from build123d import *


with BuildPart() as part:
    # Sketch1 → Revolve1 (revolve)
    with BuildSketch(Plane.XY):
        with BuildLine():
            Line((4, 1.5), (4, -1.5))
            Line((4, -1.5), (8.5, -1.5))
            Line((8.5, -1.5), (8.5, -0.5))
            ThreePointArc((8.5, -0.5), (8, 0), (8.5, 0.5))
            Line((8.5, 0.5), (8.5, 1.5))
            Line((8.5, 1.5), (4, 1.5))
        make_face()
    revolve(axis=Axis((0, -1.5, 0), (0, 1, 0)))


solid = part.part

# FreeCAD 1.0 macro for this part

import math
import FreeCAD as App
import Part
import Sketcher

V = App.Vector

doc = App.newDocument("Part")
body = doc.addObject("PartDesign::Body", "Body")

sketch1 = body.newObject("Sketcher::SketchObject", "Sketch")
sketch1.AttachmentSupport = (doc.getObject("XY_Plane"), [""])
sketch1.MapMode = "FlatFace"
sketch1.addGeometry([
    Part.LineSegment(V(4, 1.5, 0), V(4, -1.5, 0)),
    Part.LineSegment(V(4, -1.5, 0), V(8.5, -1.5, 0)),
    Part.LineSegment(V(8.5, -1.5, 0), V(8.5, -0.5, 0)),
    Part.ArcOfCircle(Part.Circle(V(8.5, 0, 0), V(0, 0, 1), 0.5), math.radians(90), math.radians(270)),
    Part.LineSegment(V(8.5, 0.5, 0), V(8.5, 1.5, 0)),
    Part.LineSegment(V(8.5, 1.5, 0), V(4, 1.5, 0)),
], False)
sketch1.addConstraint([
    Sketcher.Constraint("Coincident", 0, 2, 1, 1),
    Sketcher.Constraint("Coincident", 1, 2, 2, 1),
    Sketcher.Constraint("Coincident", 2, 2, 3, 2),
    Sketcher.Constraint("Coincident", 3, 1, 4, 1),
    Sketcher.Constraint("Coincident", 4, 2, 5, 1),
    Sketcher.Constraint("Coincident", 5, 2, 0, 1),
    Sketcher.Constraint("Vertical", 0),
    Sketcher.Constraint("Horizontal", 1),
    Sketcher.Constraint("Vertical", 2),
    Sketcher.Constraint("Vertical", 4),
    Sketcher.Constraint("Horizontal", 5),
    Sketcher.Constraint("Symmetric", 2, 2, 3, 1, -1),
    Sketcher.Constraint("Vertical", 3, 3, 1, 2),
    Sketcher.Constraint("Equal", 2, 4),
    Sketcher.Constraint("Radius", 3, 0.5),
    Sketcher.Constraint("DistanceY", 0, 2, 0, 1, 3.0),
    Sketcher.Constraint("DistanceX", 1, 1, 1, 2, 4.5),
    Sketcher.Constraint("DistanceX", -1, 1, 0, 2, 4.0),
])
revolution = body.newObject("PartDesign::Revolution", "Revolution")
revolution.Profile = sketch1
revolution.ReferenceAxis = (sketch1, ["V_Axis"])
revolution.Angle = 360

doc.recompute()
